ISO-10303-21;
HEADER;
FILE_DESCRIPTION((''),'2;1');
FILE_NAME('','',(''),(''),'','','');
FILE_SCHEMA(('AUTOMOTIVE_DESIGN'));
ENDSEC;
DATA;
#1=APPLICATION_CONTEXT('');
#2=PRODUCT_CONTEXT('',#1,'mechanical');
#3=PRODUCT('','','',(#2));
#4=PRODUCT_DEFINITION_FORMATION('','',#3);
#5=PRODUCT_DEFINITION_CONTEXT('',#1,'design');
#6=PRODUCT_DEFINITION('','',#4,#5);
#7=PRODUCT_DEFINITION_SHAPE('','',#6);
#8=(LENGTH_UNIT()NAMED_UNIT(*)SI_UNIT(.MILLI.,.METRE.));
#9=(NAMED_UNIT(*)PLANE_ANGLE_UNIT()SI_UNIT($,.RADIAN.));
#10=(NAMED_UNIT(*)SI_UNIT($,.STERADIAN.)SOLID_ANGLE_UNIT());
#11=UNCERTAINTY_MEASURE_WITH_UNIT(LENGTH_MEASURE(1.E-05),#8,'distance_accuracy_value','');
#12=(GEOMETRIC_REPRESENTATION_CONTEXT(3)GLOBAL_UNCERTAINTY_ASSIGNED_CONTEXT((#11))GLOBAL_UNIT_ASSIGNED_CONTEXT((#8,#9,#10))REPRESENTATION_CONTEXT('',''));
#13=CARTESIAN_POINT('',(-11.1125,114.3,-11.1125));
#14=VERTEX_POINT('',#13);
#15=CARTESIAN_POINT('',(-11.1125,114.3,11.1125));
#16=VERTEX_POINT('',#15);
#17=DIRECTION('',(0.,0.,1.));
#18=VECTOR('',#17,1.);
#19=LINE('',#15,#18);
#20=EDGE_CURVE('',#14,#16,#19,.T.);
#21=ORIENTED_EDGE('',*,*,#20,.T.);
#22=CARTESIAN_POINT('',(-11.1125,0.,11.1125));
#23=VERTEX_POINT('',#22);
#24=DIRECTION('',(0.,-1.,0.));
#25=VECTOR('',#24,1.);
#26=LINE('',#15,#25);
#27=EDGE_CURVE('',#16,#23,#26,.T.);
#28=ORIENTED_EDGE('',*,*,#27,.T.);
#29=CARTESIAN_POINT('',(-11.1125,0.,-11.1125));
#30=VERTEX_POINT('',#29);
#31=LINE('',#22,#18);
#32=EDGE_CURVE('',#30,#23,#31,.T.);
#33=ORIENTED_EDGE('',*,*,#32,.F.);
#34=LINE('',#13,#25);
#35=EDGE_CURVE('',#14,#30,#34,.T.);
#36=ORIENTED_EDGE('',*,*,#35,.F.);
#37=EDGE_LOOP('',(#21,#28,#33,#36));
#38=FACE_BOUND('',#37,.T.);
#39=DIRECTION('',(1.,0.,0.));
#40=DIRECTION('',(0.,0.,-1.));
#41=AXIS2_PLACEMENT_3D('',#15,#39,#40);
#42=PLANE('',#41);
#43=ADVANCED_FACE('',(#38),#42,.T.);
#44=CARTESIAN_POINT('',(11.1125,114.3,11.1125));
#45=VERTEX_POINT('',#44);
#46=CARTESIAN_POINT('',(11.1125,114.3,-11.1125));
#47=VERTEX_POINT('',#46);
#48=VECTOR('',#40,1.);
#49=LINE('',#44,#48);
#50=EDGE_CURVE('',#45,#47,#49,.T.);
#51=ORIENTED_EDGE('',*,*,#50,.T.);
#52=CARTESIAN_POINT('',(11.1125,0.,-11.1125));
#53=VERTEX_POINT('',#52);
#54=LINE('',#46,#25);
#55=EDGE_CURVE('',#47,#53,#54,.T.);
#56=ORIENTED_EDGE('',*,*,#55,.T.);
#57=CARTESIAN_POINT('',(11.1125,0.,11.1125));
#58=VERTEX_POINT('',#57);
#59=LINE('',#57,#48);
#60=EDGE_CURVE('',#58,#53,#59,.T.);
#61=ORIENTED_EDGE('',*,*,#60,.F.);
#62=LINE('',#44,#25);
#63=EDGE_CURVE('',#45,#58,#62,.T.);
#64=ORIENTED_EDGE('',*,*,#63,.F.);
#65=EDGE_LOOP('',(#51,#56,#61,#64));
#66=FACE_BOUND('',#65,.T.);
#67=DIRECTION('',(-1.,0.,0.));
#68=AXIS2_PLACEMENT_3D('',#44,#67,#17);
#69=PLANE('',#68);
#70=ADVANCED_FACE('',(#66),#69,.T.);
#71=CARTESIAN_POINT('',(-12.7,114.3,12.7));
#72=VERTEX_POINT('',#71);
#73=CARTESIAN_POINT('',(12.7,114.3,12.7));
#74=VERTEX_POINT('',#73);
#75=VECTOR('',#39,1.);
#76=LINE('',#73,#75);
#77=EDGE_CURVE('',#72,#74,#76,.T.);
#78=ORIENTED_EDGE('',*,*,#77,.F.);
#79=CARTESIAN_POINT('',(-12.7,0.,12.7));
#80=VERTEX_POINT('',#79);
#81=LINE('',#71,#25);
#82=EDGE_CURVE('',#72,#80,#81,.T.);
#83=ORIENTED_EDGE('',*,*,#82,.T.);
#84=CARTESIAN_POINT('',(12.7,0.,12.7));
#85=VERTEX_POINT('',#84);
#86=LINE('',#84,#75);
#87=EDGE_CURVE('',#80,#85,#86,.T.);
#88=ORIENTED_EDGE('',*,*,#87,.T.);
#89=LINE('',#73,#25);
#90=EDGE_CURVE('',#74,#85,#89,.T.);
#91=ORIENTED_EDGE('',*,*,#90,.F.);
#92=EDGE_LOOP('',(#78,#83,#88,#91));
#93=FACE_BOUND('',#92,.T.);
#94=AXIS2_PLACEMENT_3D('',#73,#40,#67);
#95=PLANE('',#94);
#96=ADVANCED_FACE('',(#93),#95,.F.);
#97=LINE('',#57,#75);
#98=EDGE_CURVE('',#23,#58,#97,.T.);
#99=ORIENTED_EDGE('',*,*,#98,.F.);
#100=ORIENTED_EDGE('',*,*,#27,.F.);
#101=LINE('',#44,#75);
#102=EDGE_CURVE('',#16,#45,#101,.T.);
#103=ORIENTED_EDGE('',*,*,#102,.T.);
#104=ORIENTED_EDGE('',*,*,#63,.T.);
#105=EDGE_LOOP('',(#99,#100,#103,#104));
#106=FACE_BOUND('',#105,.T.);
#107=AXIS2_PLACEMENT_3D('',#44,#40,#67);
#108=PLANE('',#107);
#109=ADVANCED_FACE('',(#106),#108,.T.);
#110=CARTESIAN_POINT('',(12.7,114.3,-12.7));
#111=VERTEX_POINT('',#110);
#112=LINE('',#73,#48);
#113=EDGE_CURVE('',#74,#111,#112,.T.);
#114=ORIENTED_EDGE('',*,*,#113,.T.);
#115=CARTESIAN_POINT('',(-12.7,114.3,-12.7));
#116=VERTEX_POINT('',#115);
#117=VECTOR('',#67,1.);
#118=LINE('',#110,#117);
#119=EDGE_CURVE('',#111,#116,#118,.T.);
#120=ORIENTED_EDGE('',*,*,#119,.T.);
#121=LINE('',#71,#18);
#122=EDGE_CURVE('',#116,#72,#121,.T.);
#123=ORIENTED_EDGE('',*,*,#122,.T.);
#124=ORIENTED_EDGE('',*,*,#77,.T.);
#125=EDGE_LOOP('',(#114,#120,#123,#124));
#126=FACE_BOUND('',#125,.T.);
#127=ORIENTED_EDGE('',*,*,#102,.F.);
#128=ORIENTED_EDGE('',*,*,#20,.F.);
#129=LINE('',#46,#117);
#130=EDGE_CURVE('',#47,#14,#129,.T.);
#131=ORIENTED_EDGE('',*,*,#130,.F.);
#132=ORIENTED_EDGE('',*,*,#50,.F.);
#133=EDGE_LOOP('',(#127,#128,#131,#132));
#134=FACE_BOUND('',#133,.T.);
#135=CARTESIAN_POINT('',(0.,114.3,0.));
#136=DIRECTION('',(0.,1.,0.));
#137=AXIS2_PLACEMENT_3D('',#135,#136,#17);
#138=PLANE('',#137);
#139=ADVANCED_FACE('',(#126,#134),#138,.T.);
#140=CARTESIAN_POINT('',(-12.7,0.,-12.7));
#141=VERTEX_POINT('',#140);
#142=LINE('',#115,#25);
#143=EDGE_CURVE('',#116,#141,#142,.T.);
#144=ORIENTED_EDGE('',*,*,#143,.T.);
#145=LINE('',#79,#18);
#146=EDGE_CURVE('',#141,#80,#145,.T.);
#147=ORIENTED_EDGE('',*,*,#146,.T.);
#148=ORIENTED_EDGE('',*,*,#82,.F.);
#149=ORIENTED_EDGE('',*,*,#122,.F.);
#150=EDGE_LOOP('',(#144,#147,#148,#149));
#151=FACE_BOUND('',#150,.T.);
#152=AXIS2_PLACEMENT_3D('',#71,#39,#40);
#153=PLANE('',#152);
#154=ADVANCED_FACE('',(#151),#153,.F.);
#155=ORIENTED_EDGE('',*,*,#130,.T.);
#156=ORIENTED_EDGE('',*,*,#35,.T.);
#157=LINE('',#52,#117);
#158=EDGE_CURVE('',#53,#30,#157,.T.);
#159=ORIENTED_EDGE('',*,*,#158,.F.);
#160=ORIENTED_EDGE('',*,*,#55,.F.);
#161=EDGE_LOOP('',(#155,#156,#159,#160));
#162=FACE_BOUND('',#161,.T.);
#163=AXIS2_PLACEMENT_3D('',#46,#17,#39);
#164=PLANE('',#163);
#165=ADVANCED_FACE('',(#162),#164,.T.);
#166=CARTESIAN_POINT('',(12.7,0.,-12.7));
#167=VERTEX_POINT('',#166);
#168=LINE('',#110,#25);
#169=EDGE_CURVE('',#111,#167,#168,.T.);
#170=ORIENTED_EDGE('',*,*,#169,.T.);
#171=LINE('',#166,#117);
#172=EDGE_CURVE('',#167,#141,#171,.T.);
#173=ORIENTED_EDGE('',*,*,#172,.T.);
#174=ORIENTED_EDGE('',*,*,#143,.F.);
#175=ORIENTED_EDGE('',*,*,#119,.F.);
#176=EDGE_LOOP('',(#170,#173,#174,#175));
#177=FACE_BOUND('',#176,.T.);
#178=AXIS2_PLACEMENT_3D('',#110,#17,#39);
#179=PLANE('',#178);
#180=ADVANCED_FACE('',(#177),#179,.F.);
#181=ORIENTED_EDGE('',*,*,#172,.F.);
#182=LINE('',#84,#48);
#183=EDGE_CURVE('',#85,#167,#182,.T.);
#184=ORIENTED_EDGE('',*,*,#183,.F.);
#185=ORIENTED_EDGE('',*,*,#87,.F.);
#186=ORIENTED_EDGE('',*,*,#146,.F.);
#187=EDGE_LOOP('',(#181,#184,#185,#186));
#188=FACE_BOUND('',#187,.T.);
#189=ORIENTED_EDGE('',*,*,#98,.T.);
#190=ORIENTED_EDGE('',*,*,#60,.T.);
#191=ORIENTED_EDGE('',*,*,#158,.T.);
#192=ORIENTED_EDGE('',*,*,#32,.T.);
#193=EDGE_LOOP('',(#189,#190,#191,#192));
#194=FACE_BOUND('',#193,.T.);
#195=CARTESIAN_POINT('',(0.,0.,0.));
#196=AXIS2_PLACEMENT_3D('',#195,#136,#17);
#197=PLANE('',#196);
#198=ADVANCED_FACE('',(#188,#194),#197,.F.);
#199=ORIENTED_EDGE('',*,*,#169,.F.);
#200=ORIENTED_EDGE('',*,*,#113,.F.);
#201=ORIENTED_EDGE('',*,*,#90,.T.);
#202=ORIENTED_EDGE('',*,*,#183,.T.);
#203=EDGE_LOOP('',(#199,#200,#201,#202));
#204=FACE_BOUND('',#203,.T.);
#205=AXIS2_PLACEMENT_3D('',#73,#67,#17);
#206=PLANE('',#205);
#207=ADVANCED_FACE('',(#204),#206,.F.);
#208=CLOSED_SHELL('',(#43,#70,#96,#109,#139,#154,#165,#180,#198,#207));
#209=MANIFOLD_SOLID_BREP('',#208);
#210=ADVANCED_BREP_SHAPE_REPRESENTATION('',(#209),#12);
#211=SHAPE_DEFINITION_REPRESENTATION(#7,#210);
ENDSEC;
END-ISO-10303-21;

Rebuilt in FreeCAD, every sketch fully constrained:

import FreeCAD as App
import Part
import Sketcher
from FreeCAD import Vector
Q = App.Units.Quantity


def add_polygon(sketch, points):
    """Adds a closed chain of lines whose ends are joined by coincident constraints."""
    first, n = sketch.GeometryCount, len(points)
    for a, b in zip(points, points[1:] + points[:1]):
        sketch.addGeometry(Part.LineSegment(App.Vector(*a, 0), App.Vector(*b, 0)), False)
    for i in range(n):
        sketch.addConstraint(Sketcher.Constraint("Coincident", first + i, 2, first + (i + 1) % n, 1))

doc = App.newDocument("Part")
body = doc.addObject("PartDesign::Body", "Body")

sketch1 = doc.addObject("Sketcher::SketchObject", "Sketch")
body.addObject(sketch1)
sketch1.AttachmentSupport = (doc.XZ_Plane, [""])
sketch1.MapMode = "FlatFace"
add_polygon(sketch1, [(-13, -13), (-13, 13), (13, 13), (13, -13)])
add_polygon(sketch1, [(11, 11), (-11, 11), (-11, -11), (11, -11)])
sketch1.addConstraint([
    Sketcher.Constraint("Vertical", 0),
    Sketcher.Constraint("Horizontal", 1),
    Sketcher.Constraint("Vertical", 2),
    Sketcher.Constraint("Horizontal", 3),
    Sketcher.Constraint("Horizontal", 4),
    Sketcher.Constraint("Vertical", 5),
    Sketcher.Constraint("Horizontal", 6),
    Sketcher.Constraint("Vertical", 7),
    Sketcher.Constraint("Symmetric", 0, 2, 2, 2, -1, 1),
    Sketcher.Constraint("Symmetric", 4, 2, 6, 2, -1, 1),
    Sketcher.Constraint("Equal", 3, 0),
    Sketcher.Constraint("Equal", 6, 5),
    Sketcher.Constraint("DistanceX", 1, 1, 1, 2, Q("1 in")),
    Sketcher.Constraint("DistanceX", 4, 2, 4, 1, Q("0.875 in")),
])
pad1 = doc.addObject("PartDesign::Pad", "Pad")
body.addObject(pad1)
pad1.Profile = sketch1
pad1.Length = Q("4.5 in")
pad1.Reversed = True

doc.recompute()
